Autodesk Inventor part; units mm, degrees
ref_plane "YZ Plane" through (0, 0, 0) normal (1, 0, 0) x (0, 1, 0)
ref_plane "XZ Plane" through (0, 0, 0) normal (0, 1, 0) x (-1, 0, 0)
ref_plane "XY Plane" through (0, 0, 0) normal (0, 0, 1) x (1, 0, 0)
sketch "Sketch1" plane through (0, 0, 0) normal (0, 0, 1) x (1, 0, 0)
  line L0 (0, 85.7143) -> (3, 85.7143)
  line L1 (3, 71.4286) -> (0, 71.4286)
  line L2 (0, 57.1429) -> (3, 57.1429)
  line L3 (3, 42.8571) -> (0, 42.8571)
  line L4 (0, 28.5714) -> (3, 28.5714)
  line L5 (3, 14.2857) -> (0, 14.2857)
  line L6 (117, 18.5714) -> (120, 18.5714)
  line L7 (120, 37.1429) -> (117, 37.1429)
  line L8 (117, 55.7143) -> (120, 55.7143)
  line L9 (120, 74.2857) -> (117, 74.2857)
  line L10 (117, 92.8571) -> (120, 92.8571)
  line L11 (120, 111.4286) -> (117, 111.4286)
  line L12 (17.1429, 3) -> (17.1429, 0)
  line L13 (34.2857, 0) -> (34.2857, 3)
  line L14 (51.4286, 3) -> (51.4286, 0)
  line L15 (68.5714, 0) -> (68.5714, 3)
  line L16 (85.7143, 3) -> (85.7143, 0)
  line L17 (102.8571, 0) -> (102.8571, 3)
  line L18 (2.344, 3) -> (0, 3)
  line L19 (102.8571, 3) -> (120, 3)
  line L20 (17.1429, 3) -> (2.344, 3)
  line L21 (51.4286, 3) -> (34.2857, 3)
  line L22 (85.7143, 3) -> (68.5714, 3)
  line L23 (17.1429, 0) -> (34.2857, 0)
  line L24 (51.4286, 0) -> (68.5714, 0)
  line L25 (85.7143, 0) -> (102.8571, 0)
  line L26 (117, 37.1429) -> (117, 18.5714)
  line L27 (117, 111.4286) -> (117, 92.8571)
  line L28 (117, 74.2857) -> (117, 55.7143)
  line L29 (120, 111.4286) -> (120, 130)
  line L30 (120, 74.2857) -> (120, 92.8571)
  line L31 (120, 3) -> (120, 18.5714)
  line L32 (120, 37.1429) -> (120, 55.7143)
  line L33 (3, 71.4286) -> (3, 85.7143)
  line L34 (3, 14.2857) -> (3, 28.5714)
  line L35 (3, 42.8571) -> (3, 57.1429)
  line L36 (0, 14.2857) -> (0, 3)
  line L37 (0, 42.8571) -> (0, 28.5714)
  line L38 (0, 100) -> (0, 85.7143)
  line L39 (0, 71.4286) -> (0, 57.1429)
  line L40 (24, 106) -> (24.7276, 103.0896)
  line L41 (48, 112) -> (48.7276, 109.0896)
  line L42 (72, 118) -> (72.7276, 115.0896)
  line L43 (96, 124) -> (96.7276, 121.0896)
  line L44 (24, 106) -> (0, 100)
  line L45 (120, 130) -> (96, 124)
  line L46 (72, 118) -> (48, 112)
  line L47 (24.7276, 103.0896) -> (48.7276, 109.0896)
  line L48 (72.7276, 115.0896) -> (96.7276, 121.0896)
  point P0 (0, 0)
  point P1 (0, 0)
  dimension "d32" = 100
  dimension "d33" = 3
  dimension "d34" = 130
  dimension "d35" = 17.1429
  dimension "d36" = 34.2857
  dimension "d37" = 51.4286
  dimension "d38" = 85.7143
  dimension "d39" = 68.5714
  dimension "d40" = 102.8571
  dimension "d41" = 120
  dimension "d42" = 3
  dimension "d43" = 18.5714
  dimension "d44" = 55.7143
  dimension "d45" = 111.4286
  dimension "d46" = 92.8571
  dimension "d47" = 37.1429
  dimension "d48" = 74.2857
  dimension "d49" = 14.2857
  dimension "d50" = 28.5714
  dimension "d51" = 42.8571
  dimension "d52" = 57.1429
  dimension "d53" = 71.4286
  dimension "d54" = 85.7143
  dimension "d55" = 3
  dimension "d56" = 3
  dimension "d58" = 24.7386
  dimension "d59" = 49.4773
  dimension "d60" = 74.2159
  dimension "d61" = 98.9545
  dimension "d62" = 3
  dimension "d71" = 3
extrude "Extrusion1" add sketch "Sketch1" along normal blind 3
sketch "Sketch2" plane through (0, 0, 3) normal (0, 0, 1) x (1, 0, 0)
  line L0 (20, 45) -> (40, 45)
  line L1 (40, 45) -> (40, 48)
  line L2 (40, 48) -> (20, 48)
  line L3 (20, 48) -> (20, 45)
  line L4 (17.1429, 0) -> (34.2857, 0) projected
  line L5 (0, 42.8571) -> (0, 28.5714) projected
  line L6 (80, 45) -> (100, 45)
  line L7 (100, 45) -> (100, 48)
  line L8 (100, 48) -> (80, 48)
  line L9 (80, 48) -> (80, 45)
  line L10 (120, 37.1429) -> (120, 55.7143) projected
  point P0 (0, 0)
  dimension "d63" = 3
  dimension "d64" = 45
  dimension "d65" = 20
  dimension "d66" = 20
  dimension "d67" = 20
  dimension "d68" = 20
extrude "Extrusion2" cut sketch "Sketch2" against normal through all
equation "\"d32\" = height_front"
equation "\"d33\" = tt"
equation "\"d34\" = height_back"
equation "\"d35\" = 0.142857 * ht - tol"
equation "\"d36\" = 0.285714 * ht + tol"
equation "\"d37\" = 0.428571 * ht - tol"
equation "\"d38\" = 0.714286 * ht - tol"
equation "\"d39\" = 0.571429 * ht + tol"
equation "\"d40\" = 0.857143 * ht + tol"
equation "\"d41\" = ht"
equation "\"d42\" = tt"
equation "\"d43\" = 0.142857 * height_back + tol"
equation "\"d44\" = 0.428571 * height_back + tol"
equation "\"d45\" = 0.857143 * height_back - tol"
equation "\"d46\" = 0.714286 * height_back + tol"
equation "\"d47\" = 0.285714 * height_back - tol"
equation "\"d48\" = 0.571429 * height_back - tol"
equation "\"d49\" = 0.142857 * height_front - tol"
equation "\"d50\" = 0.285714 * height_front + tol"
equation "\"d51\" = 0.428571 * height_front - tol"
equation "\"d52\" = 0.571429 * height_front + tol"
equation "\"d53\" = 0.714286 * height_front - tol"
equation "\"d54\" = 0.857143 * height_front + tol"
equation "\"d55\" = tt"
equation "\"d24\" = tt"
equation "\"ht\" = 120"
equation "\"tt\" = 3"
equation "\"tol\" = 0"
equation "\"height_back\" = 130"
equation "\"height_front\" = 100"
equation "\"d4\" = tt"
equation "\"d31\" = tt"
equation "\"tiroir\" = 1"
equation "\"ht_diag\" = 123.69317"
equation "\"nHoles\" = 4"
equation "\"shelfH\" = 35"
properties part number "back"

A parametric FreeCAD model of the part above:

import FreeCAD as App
import Part
import Sketcher

V = App.Vector
Q = App.Units.Quantity


def add_polygon(sketch, points):
    """Adds a closed chain of lines whose ends are joined by coincident constraints."""
    first, n = sketch.GeometryCount, len(points)
    for a, b in zip(points, points[1:] + points[:1]):
        sketch.addGeometry(Part.LineSegment(App.Vector(*a, 0), App.Vector(*b, 0)), False)
    for i in range(n):
        sketch.addConstraint(Sketcher.Constraint("Coincident", first + i, 2, first + (i + 1) % n, 1))

doc = App.newDocument("Part")
body = doc.addObject("PartDesign::Body", "Body")

# Sketch on XY plane
sketch1 = body.newObject("Sketcher::SketchObject", "Sketch")
sketch1.AttachmentSupport = (doc.getObject("XY_Plane"), [""])
sketch1.MapMode = "FlatFace"
add_polygon(sketch1, [(0, 100), (0, 85.7143), (3, 85.7143), (3, 71.4286), (0, 71.4286), (0, 57.1429), (3, 57.1429), (3, 42.8571), (0, 42.8571), (0, 28.5714), (3, 28.5714), (3, 14.2857), (0, 14.2857), (0, 3), (17.1429, 3), (17.1429, 0), (34.2857, 0), (34.2857, 3), (51.4286, 3), (51.4286, 0), (68.5714, 0), (68.5714, 3), (85.7143, 3), (85.7143, 0), (102.8571, 0), (102.8571, 3), (120, 3), (120, 18.5714), (117, 18.5714), (117, 37.1429), (120, 37.1429), (120, 55.7143), (117, 55.7143), (117, 74.2857), (120, 74.2857), (120, 92.8571), (117, 92.8571), (117, 111.4286), (120, 111.4286), (120, 130), (96, 124), (96.7276, 121.0896), (72.7276, 115.0896), (72, 118), (48, 112), (48.7276, 109.0896), (24.7276, 103.0896), (24, 106)])  # lines 0-47
sketch1.addConstraint([
    Sketcher.Constraint("Vertical", 0),
    Sketcher.Constraint("Horizontal", 1),
    Sketcher.Constraint("Vertical", 2),
    Sketcher.Constraint("Horizontal", 3),
    Sketcher.Constraint("Vertical", 4),
    Sketcher.Constraint("Horizontal", 5),
    Sketcher.Constraint("Vertical", 6),
    Sketcher.Constraint("Horizontal", 7),
    Sketcher.Constraint("Vertical", 8),
    Sketcher.Constraint("Horizontal", 9),
    Sketcher.Constraint("Vertical", 10),
    Sketcher.Constraint("Horizontal", 11),
    Sketcher.Constraint("Vertical", 12),
    Sketcher.Constraint("Horizontal", 13),
    Sketcher.Constraint("Vertical", 14),
    Sketcher.Constraint("Horizontal", 15),
    Sketcher.Constraint("Vertical", 16),
    Sketcher.Constraint("Horizontal", 17),
    Sketcher.Constraint("Vertical", 18),
    Sketcher.Constraint("Horizontal", 19),
    Sketcher.Constraint("Vertical", 20),
    Sketcher.Constraint("Horizontal", 21),
    Sketcher.Constraint("Vertical", 22),
    Sketcher.Constraint("Horizontal", 23),
    Sketcher.Constraint("Vertical", 24),
    Sketcher.Constraint("Horizontal", 25),
    Sketcher.Constraint("Vertical", 26),
    Sketcher.Constraint("Horizontal", 27),
    Sketcher.Constraint("Vertical", 28),
    Sketcher.Constraint("Horizontal", 29),
    Sketcher.Constraint("Vertical", 30),
    Sketcher.Constraint("Horizontal", 31),
    Sketcher.Constraint("Vertical", 32),
    Sketcher.Constraint("Horizontal", 33),
    Sketcher.Constraint("Vertical", 34),
    Sketcher.Constraint("Horizontal", 35),
    Sketcher.Constraint("Vertical", 36),
    Sketcher.Constraint("Horizontal", 37),
    Sketcher.Constraint("Vertical", 38),
    Sketcher.Constraint("PointOnObject", 0, 2, -2),
    Sketcher.Constraint("PointOnObject", 3, 2, -2),
    Sketcher.Constraint("PointOnObject", 7, 2, -2),
    Sketcher.Constraint("PointOnObject", 11, 2, -2),
    Sketcher.Constraint("PointOnObject", 14, 2, -1),
    Sketcher.Constraint("PointOnObject", 18, 2, -1),
    Sketcher.Constraint("PointOnObject", 22, 2, -1),
    Sketcher.Constraint("Perpendicular", 39, 40),
    Sketcher.Constraint("Perpendicular", 40, 41),
    Sketcher.Constraint("Perpendicular", 41, 42),
    Sketcher.Constraint("Perpendicular", 42, 43),
    Sketcher.Constraint("Perpendicular", 43, 44),
    Sketcher.Constraint("Perpendicular", 44, 45),
    Sketcher.Constraint("Perpendicular", 45, 46),
    Sketcher.Constraint("Perpendicular", 46, 47),
    Sketcher.Constraint("Horizontal", 13, 2, 16, 2),
    Sketcher.Constraint("Horizontal", 17, 2, 20, 2),
    Sketcher.Constraint("Horizontal", 21, 2, 24, 2),
    Sketcher.Constraint("Vertical", 2, 2, 5, 2),
    Sketcher.Constraint("Vertical", 6, 2, 9, 2),
    Sketcher.Constraint("Vertical", 26, 2, 29, 2),
    Sketcher.Constraint("Vertical", 28, 2, 31, 2),
    Sketcher.Constraint("Vertical", 30, 2, 33, 2),
    Sketcher.Constraint("Vertical", 32, 2, 35, 2),
    Sketcher.Constraint("Vertical", 34, 2, 37, 2),
    Sketcher.Constraint("Equal", 13, 15),
    Sketcher.Constraint("Equal", 15, 17),
    Sketcher.Constraint("Equal", 17, 19),
    Sketcher.Constraint("Equal", 19, 21),
    Sketcher.Constraint("Equal", 21, 23),
    Sketcher.Constraint("Equal", 23, 25),
    Sketcher.Constraint("Equal", 11, 27),
    Sketcher.Constraint("Equal", 0, 2),
    Sketcher.Constraint("Equal", 2, 4),
    Sketcher.Constraint("Equal", 4, 6),
    Sketcher.Constraint("Equal", 6, 8),
    Sketcher.Constraint("Equal", 8, 10),
    Sketcher.Constraint("Equal", 37, 14),
    Sketcher.Constraint("Equal", 28, 30),
    Sketcher.Constraint("Equal", 30, 32),
    Sketcher.Constraint("Equal", 32, 34),
    Sketcher.Constraint("Equal", 34, 36),
    Sketcher.Constraint("Equal", 36, 38),
    Sketcher.Constraint("Equal", 39, 41),
    Sketcher.Constraint("Equal", 40, 42),
    Sketcher.Constraint("Equal", 41, 43),
    Sketcher.Constraint("Equal", 42, 44),
    Sketcher.Constraint("Equal", 43, 45),
    Sketcher.Constraint("Equal", 44, 46),
    Sketcher.Constraint("Equal", 45, 47),
    Sketcher.Constraint("DistanceX", 1, 1, 1, 2, Q("3 mm")),
    Sketcher.Constraint("Distance", 40, Q("3 mm")),
    Sketcher.Constraint("DistanceX", -1, 1, 25, 2, Q("120 mm")),
    Sketcher.Constraint("DistanceY", -1, 1, 38, 2, Q("130 mm")),
    Sketcher.Constraint("DistanceY", -1, 1, 47, 2, Q("100 mm")),
    Sketcher.Constraint("DistanceY", 0, 2, 0, 1, Q("14.2857 mm")),
    Sketcher.Constraint("DistanceY", 28, 1, 28, 2, Q("18.5715 mm")),
])
pad1 = body.newObject("PartDesign::Pad", "Pad")
pad1.Profile = sketch1
pad1.Length = 3

# Sketch on XY plane
sketch2 = body.newObject("Sketcher::SketchObject", "Sketch001")
sketch2.AttachmentSupport = (doc.getObject("XY_Plane"), [""])
sketch2.MapMode = "FlatFace"
sketch2.AttachmentOffset = App.Placement(V(0, 0, 3), App.Rotation())
add_polygon(sketch2, [(20, 48), (20, 45), (40, 45), (40, 48)])  # lines 0-3
add_polygon(sketch2, [(80, 48), (80, 45), (100, 45), (100, 48)])  # lines 4-7
sketch2.addConstraint([
    Sketcher.Constraint("Vertical", 0),
    Sketcher.Constraint("Horizontal", 1),
    Sketcher.Constraint("Vertical", 2),
    Sketcher.Constraint("Horizontal", 3),
    Sketcher.Constraint("Vertical", 4),
    Sketcher.Constraint("Horizontal", 5),
    Sketcher.Constraint("Vertical", 6),
    Sketcher.Constraint("Horizontal", 7),
    Sketcher.Constraint("Horizontal", 1, 2, 4, 2),
    Sketcher.Constraint("Horizontal", 3, 2, 6, 2),
    Sketcher.Constraint("Equal", 3, 5),
    Sketcher.Constraint("DistanceX", 1, 1, 1, 2, Q("20 mm")),
    Sketcher.Constraint("DistanceY", 0, 2, 0, 1, Q("3 mm")),
    Sketcher.Constraint("DistanceX", -1, 1, 0, 2, Q("20 mm")),
    Sketcher.Constraint("DistanceY", -1, 1, 0, 2, Q("45 mm")),
    Sketcher.Constraint("DistanceX", -1, 1, 4, 2, Q("80 mm")),
])
pocket1 = body.newObject("PartDesign::Pocket", "Pocket")
pocket1.Profile = sketch2
pocket1.Type = "ThroughAll"

doc.recompute()
